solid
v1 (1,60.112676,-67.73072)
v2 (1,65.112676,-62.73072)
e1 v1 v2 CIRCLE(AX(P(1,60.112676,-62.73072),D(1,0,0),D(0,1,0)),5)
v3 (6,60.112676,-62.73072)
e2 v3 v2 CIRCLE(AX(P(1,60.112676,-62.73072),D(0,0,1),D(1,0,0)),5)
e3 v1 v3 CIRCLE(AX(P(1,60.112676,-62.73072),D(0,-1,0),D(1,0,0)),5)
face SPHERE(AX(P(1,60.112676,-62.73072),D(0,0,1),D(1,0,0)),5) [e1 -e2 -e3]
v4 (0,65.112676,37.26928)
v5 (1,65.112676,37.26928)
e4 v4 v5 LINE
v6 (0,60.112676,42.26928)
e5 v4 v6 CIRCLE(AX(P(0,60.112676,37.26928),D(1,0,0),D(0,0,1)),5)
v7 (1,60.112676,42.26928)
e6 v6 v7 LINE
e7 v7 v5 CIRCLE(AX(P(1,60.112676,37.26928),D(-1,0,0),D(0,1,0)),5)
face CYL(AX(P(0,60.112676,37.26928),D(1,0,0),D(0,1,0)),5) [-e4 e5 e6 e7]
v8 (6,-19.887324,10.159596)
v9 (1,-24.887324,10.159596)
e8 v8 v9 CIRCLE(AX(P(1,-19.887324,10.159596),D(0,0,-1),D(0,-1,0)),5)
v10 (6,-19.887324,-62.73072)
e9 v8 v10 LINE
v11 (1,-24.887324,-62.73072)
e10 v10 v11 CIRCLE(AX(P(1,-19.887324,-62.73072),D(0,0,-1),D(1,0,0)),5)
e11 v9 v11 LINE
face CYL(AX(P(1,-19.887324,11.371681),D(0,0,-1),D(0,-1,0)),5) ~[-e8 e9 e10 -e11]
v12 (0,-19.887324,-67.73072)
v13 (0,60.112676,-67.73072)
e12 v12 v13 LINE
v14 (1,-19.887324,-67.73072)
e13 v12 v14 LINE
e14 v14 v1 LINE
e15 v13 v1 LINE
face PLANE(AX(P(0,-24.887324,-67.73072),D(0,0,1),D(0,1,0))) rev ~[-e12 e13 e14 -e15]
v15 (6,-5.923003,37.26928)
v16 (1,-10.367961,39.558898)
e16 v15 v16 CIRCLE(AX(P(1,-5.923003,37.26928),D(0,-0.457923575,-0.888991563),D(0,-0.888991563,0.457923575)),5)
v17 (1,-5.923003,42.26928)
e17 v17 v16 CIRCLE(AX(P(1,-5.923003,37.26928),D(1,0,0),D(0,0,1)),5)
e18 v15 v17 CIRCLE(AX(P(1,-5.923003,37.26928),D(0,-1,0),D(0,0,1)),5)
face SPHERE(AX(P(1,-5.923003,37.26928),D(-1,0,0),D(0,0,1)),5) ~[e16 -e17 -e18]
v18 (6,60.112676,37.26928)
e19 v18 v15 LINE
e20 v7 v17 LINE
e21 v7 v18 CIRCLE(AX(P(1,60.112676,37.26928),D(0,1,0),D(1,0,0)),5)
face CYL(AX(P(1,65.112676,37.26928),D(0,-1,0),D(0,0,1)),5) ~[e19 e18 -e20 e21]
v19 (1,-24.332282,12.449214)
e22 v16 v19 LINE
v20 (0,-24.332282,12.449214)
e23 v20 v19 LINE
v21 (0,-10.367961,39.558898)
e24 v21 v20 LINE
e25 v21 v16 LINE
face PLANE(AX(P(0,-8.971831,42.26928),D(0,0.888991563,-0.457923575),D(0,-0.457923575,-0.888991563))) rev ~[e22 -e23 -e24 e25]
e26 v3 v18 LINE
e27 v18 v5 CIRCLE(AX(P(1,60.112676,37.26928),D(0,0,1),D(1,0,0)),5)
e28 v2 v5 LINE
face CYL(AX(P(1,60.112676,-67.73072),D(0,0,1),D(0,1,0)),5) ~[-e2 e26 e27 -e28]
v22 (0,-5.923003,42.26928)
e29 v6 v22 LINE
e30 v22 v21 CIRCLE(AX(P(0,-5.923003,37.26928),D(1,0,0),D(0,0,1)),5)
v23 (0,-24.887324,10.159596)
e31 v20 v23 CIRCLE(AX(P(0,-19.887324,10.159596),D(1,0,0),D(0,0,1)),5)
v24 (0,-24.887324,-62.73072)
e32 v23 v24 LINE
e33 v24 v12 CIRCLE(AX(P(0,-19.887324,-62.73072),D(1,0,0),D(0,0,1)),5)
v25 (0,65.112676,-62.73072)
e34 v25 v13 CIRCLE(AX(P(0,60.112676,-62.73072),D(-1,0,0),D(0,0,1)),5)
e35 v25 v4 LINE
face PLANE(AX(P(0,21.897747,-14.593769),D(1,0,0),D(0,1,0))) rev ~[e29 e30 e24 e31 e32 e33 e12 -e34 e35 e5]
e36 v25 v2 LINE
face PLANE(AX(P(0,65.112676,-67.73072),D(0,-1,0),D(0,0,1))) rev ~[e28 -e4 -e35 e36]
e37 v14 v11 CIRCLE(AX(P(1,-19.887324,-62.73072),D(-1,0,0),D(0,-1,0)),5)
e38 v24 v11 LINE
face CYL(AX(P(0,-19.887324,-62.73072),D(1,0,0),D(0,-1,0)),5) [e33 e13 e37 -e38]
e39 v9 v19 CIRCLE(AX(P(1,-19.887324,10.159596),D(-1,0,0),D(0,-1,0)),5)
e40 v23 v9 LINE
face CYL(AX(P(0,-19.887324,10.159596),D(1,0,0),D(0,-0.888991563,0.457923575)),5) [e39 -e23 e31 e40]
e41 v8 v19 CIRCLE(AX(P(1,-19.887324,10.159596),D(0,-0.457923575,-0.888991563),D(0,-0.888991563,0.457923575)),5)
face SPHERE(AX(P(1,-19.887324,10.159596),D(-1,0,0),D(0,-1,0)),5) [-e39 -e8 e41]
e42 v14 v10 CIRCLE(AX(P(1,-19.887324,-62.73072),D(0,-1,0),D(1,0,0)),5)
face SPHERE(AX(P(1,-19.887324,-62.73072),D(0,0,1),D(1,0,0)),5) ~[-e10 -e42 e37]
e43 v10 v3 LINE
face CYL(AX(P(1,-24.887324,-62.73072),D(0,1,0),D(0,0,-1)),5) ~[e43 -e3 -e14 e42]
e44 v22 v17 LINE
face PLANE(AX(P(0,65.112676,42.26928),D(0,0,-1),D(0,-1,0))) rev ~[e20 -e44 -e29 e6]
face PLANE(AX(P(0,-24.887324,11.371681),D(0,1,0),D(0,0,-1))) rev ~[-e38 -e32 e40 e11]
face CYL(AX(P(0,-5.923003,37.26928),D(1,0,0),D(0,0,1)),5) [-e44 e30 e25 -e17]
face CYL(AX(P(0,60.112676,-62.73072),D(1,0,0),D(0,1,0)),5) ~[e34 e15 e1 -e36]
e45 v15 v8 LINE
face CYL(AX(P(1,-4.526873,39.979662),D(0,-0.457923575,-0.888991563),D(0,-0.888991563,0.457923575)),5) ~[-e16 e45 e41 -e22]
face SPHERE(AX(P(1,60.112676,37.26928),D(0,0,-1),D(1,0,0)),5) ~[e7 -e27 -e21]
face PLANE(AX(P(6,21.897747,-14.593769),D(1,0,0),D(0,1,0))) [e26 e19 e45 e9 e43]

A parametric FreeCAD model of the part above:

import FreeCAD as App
import Part
import Sketcher

V = App.Vector
Q = App.Units.Quantity


def edges_at(feature, points):
    """Names of the edges that pass closest to the given points."""
    edges = feature.Shape.Edges
    near = lambda p: min(range(len(edges)), key=lambda i: edges[i].distToShape(Part.Vertex(*p))[0])
    return sorted({f"Edge{near(p) + 1}" for p in points})


def add_polygon(sketch, points):
    """Adds a closed chain of lines whose ends are joined by coincident constraints."""
    first, n = sketch.GeometryCount, len(points)
    for a, b in zip(points, points[1:] + points[:1]):
        sketch.addGeometry(Part.LineSegment(App.Vector(*a, 0), App.Vector(*b, 0)), False)
    for i in range(n):
        sketch.addConstraint(Sketcher.Constraint("Coincident", first + i, 2, first + (i + 1) % n, 1))

doc = App.newDocument("Part")
params = doc.addObject("Spreadsheet::Sheet", "Params")
for row, (alias, value) in enumerate([
    ("sketch1_width", "90 mm"),
    ("sketch1_height", "110 mm"),
    ("pad1_length", "6 mm"),
    ("fillet_radius", "5 mm"),
], start=1):
    params.set(f"A{row}", alias)
    params.set(f"B{row}", "=" + value)
    params.setAlias(f"B{row}", alias)

body = doc.addObject("PartDesign::Body", "Body")

# Sketch on YZ plane
sketch1 = body.newObject("Sketcher::SketchObject", "Sketch")
sketch1.AttachmentSupport = (doc.getObject("YZ_Plane"), [""])
sketch1.MapMode = "FlatFace"
add_polygon(sketch1, [(65, -68), (65, 42), (-9, 42), (-25, 11), (-25, -68)])  # lines 0-4
sketch1.addConstraint(Sketcher.Constraint("Vertical", 0))
sketch1.addConstraint(Sketcher.Constraint("Horizontal", 1))
sketch1.addConstraint(Sketcher.Constraint("Vertical", 3))
sketch1.addConstraint(Sketcher.Constraint("Horizontal", 4))
sketch1.addConstraint(Sketcher.Constraint("DistanceX", 4, 1, 4, 2, Q("90 mm")))
sketch1.addConstraint(Sketcher.Constraint("DistanceY", 0, 1, 0, 2, Q("110 mm")))
sketch1.addConstraint(Sketcher.Constraint("DistanceY", 3, 2, 3, 1, Q("79.102401 mm")))
sketch1.addConstraint(Sketcher.Constraint("DistanceX", 1, 2, 1, 1, Q("74.084507 mm")))
sketch1.addConstraint(Sketcher.Constraint("DistanceY", -1, 1, 0, 2, Q("42.26928 mm")))
sketch1.addConstraint(Sketcher.Constraint("DistanceX", 1, 2, -1, 1, Q("8.971831 mm")))
sketch1.setExpression("Constraints[9]", "Params.sketch1_width")
sketch1.setExpression("Constraints[10]", "Params.sketch1_height")
pad1 = body.newObject("PartDesign::Pad", "Pad")
pad1.Profile = sketch1
pad1.setExpression("Length", "Params.pad1_length")
doc.recompute()

fillet = body.newObject("PartDesign::Fillet", "Fillet")
fillet.Base = (pad1, edges_at(pad1, [
    (6, 65.113, -12.731),
    (6, 28.07, 42.269),
    (6, -24.887, -28.18),
    (6, 20.113, -67.731),
    (6, -16.93, 26.82),
    (3, -24.887, 11.372),
    (3, -8.972, 42.269),
    (3, -24.887, -67.731),
    (3, 65.113, 42.269),
    (3, 65.113, -67.731),
]))
fillet.setExpression("Radius", "Params.fillet_radius")

doc.recompute()
